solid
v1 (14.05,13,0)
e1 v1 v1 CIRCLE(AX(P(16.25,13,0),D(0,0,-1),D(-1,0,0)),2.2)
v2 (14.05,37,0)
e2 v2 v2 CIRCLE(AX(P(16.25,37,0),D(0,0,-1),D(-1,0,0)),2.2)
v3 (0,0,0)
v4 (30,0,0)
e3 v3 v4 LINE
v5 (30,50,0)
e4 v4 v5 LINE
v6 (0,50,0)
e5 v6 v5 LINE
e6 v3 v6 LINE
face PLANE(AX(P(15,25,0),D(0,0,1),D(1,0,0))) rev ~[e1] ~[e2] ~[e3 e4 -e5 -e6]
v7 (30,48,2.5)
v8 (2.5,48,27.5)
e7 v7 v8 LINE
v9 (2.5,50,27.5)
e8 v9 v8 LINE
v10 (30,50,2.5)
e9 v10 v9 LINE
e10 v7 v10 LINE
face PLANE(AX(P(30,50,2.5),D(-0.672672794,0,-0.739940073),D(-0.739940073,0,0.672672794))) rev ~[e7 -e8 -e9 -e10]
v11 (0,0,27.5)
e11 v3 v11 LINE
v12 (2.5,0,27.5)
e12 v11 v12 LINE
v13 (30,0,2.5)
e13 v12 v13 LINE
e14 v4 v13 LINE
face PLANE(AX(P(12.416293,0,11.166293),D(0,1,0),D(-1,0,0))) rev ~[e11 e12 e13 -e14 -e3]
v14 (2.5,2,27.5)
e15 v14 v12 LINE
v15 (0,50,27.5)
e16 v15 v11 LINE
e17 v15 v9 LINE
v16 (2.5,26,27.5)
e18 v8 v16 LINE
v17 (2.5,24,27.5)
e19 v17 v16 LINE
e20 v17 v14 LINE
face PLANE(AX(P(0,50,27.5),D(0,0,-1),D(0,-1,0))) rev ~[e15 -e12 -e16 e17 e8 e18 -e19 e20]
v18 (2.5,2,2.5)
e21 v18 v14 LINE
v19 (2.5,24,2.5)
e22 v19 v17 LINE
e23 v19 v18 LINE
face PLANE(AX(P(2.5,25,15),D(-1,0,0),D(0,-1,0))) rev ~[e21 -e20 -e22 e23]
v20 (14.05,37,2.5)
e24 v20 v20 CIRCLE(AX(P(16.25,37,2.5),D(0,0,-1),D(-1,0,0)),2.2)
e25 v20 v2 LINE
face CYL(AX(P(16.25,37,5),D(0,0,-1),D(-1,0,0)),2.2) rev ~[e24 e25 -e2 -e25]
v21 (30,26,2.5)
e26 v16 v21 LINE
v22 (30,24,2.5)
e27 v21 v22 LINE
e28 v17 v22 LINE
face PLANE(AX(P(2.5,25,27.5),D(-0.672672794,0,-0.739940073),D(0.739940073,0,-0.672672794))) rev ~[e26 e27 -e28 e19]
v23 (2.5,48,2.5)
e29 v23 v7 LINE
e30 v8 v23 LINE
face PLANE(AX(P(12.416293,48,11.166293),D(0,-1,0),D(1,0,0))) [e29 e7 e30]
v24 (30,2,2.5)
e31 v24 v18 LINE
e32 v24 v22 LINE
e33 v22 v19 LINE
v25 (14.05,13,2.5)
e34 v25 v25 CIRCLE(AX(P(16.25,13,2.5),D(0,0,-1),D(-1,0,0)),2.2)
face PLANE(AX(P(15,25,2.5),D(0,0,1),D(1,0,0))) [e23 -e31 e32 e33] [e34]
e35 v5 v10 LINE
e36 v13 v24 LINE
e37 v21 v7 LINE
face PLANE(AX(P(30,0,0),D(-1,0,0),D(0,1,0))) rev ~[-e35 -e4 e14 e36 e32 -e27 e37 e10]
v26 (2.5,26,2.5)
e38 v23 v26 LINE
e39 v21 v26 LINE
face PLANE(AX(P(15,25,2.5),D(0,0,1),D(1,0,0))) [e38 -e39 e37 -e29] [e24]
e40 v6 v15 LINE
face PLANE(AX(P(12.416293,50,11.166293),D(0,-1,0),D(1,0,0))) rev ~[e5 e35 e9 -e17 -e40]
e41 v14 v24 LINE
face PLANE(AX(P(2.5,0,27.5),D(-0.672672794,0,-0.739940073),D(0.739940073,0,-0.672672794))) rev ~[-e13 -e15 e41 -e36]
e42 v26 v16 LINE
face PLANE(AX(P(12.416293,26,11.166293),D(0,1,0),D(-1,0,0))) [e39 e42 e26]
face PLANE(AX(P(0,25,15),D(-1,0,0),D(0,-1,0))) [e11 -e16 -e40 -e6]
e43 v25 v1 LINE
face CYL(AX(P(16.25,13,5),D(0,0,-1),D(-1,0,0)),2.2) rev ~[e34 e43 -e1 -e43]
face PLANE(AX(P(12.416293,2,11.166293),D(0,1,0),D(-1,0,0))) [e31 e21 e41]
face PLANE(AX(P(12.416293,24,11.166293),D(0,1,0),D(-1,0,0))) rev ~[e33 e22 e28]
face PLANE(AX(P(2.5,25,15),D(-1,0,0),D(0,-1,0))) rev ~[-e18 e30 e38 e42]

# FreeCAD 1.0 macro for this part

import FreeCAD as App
import Part
import Sketcher


def add_polygon(sketch, points):
    """Adds a closed chain of lines whose ends are joined by coincident constraints."""
    first, n = sketch.GeometryCount, len(points)
    for a, b in zip(points, points[1:] + points[:1]):
        sketch.addGeometry(Part.LineSegment(App.Vector(*a, 0), App.Vector(*b, 0)), False)
    for i in range(n):
        sketch.addConstraint(Sketcher.Constraint("Coincident", first + i, 2, first + (i + 1) % n, 1))

doc = App.newDocument("Part")
body = doc.addObject("PartDesign::Body", "Body")

# Sketch on XY plane
sketch1 = body.newObject("Sketcher::SketchObject", "Sketch")
sketch1.AttachmentSupport = (doc.getObject("XY_Plane"), [""])
sketch1.MapMode = "FlatFace"
add_polygon(sketch1, [(0, 50), (0, 0), (30, 0), (30, 50)])  # lines 0-3
sketch1.addConstraint(Sketcher.Constraint("Vertical", 0))
sketch1.addConstraint(Sketcher.Constraint("Horizontal", 1))
sketch1.addConstraint(Sketcher.Constraint("Vertical", 2))
sketch1.addConstraint(Sketcher.Constraint("Horizontal", 3))
sketch1.addConstraint(Sketcher.Constraint("Coincident", 0, 2, -1, 1))
sketch1.addConstraint(Sketcher.Constraint("DistanceX", 1, 1, 1, 2, 30.0))
sketch1.addConstraint(Sketcher.Constraint("DistanceY", 0, 2, 0, 1, 50.0))
pad1 = body.newObject("PartDesign::Pad", "Pad")
pad1.Profile = sketch1
pad1.Length = 2.5

# Sketch on YZ plane
sketch2 = body.newObject("Sketcher::SketchObject", "Sketch001")
sketch2.AttachmentSupport = (doc.getObject("YZ_Plane"), [""])
sketch2.MapMode = "FlatFace"
add_polygon(sketch2, [(50, 28), (50, 2), (0, 2), (0, 28)])  # lines 0-3
sketch2.addConstraint(Sketcher.Constraint("Vertical", 0))
sketch2.addConstraint(Sketcher.Constraint("Horizontal", 1))
sketch2.addConstraint(Sketcher.Constraint("Vertical", 2))
sketch2.addConstraint(Sketcher.Constraint("Horizontal", 3))
sketch2.addConstraint(Sketcher.Constraint("PointOnObject", 1, 2, -2))
sketch2.addConstraint(Sketcher.Constraint("DistanceX", 1, 2, 1, 1, 50.0))
sketch2.addConstraint(Sketcher.Constraint("DistanceY", 0, 2, 0, 1, 25.0))
sketch2.addConstraint(Sketcher.Constraint("DistanceY", -1, 1, 0, 2, 2.5))
pad2 = body.newObject("PartDesign::Pad", "Pad001")
pad2.Profile = sketch2
pad2.Length = 2.5

# Sketch on XZ plane
sketch3 = body.newObject("Sketcher::SketchObject", "Sketch002")
sketch3.AttachmentSupport = (doc.getObject("XZ_Plane"), [""])
sketch3.MapMode = "FlatFace"
add_polygon(sketch3, [(2, 28), (2, 2), (30, 2)])  # lines 0-2
sketch3.addConstraint(Sketcher.Constraint("Vertical", 0))
sketch3.addConstraint(Sketcher.Constraint("Horizontal", 1))
sketch3.addConstraint(Sketcher.Constraint("DistanceY", 0, 2, 0, 1, 25.0))
sketch3.addConstraint(Sketcher.Constraint("DistanceX", 1, 1, 1, 2, 27.5))
sketch3.addConstraint(Sketcher.Constraint("DistanceX", -1, 1, 1, 2, 30.0))
sketch3.addConstraint(Sketcher.Constraint("DistanceY", -1, 1, 0, 2, 2.5))
pad3 = body.newObject("PartDesign::Pad", "Pad002")
pad3.Profile = sketch3
pad3.Length = 2
pad3.Reversed = True

# Sketch on XZ plane
sketch4 = body.newObject("Sketcher::SketchObject", "Sketch003")
sketch4.AttachmentSupport = (doc.getObject("XZ_Plane"), [""])
sketch4.MapMode = "FlatFace"
sketch4.AttachmentOffset = App.Placement(App.Vector(0, 0, -25), App.Rotation())
add_polygon(sketch4, [(2, 28), (2, 2), (30, 2)])  # lines 0-2
sketch4.addConstraint(Sketcher.Constraint("Vertical", 0))
sketch4.addConstraint(Sketcher.Constraint("Horizontal", 1))
sketch4.addConstraint(Sketcher.Constraint("DistanceY", 0, 2, 0, 1, 25.0))
sketch4.addConstraint(Sketcher.Constraint("DistanceX", 1, 1, 1, 2, 27.5))
sketch4.addConstraint(Sketcher.Constraint("DistanceX", -1, 1, 1, 2, 30.0))
sketch4.addConstraint(Sketcher.Constraint("DistanceY", -1, 1, 0, 2, 2.5))
pad4 = body.newObject("PartDesign::Pad", "Pad003")
pad4.Profile = sketch4
pad4.Length = 2
pad4.Midplane = True

# Sketch on XZ plane
sketch5 = body.newObject("Sketcher::SketchObject", "Sketch004")
sketch5.AttachmentSupport = (doc.getObject("XZ_Plane"), [""])
sketch5.MapMode = "FlatFace"
sketch5.AttachmentOffset = App.Placement(App.Vector(0, 0, -50), App.Rotation())
add_polygon(sketch5, [(2, 28), (2, 2), (30, 2)])  # lines 0-2
sketch5.addConstraint(Sketcher.Constraint("Vertical", 0))
sketch5.addConstraint(Sketcher.Constraint("Horizontal", 1))
sketch5.addConstraint(Sketcher.Constraint("DistanceY", 0, 2, 0, 1, 25.0))
sketch5.addConstraint(Sketcher.Constraint("DistanceX", 1, 1, 1, 2, 27.5))
sketch5.addConstraint(Sketcher.Constraint("DistanceX", -1, 1, 1, 2, 30.0))
sketch5.addConstraint(Sketcher.Constraint("DistanceY", -1, 1, 0, 2, 2.5))
pad5 = body.newObject("PartDesign::Pad", "Pad004")
pad5.Profile = sketch5
pad5.Length = 2

# Sketch on XY plane
sketch6 = body.newObject("Sketcher::SketchObject", "Sketch005")
sketch6.AttachmentSupport = (doc.getObject("XY_Plane"), [""])
sketch6.MapMode = "FlatFace"
sketch6.AttachmentOffset = App.Placement(App.Vector(0, 0, 5), App.Rotation())
sketch6.addGeometry(Part.Circle(App.Vector(16.2, 37, 0), App.Vector(0, 0, 1), 2.2), False)
sketch6.addGeometry(Part.Circle(App.Vector(16.2, 13, 0), App.Vector(0, 0, 1), 2.2), False)
sketch6.addConstraint(Sketcher.Constraint("Equal", 0, 1))
sketch6.addConstraint(Sketcher.Constraint("Vertical", 0, 3, 1, 3))
sketch6.addConstraint(Sketcher.Constraint("Diameter", 0, 4.4))
sketch6.addConstraint(Sketcher.Constraint("DistanceY", -1, 1, 0, 3, 37.0))
sketch6.addConstraint(Sketcher.Constraint("DistanceY", -1, 1, 1, 3, 13.0))
sketch6.addConstraint(Sketcher.Constraint("DistanceX", -1, 1, 0, 3, 16.25))
doc.recompute()
hole = body.newObject("PartDesign::Hole", "Hole")
hole.Profile = sketch6
hole.ThreadType = "None"
hole.Diameter = 4.4
hole.DepthType = "Dimension"
hole.Depth = 25
hole.DrillPoint = "Flat"
hole.HoleCutType = "Countersink"
hole.HoleCutDiameter = 8
hole.HoleCutCountersinkAngle = 90

doc.recompute()
